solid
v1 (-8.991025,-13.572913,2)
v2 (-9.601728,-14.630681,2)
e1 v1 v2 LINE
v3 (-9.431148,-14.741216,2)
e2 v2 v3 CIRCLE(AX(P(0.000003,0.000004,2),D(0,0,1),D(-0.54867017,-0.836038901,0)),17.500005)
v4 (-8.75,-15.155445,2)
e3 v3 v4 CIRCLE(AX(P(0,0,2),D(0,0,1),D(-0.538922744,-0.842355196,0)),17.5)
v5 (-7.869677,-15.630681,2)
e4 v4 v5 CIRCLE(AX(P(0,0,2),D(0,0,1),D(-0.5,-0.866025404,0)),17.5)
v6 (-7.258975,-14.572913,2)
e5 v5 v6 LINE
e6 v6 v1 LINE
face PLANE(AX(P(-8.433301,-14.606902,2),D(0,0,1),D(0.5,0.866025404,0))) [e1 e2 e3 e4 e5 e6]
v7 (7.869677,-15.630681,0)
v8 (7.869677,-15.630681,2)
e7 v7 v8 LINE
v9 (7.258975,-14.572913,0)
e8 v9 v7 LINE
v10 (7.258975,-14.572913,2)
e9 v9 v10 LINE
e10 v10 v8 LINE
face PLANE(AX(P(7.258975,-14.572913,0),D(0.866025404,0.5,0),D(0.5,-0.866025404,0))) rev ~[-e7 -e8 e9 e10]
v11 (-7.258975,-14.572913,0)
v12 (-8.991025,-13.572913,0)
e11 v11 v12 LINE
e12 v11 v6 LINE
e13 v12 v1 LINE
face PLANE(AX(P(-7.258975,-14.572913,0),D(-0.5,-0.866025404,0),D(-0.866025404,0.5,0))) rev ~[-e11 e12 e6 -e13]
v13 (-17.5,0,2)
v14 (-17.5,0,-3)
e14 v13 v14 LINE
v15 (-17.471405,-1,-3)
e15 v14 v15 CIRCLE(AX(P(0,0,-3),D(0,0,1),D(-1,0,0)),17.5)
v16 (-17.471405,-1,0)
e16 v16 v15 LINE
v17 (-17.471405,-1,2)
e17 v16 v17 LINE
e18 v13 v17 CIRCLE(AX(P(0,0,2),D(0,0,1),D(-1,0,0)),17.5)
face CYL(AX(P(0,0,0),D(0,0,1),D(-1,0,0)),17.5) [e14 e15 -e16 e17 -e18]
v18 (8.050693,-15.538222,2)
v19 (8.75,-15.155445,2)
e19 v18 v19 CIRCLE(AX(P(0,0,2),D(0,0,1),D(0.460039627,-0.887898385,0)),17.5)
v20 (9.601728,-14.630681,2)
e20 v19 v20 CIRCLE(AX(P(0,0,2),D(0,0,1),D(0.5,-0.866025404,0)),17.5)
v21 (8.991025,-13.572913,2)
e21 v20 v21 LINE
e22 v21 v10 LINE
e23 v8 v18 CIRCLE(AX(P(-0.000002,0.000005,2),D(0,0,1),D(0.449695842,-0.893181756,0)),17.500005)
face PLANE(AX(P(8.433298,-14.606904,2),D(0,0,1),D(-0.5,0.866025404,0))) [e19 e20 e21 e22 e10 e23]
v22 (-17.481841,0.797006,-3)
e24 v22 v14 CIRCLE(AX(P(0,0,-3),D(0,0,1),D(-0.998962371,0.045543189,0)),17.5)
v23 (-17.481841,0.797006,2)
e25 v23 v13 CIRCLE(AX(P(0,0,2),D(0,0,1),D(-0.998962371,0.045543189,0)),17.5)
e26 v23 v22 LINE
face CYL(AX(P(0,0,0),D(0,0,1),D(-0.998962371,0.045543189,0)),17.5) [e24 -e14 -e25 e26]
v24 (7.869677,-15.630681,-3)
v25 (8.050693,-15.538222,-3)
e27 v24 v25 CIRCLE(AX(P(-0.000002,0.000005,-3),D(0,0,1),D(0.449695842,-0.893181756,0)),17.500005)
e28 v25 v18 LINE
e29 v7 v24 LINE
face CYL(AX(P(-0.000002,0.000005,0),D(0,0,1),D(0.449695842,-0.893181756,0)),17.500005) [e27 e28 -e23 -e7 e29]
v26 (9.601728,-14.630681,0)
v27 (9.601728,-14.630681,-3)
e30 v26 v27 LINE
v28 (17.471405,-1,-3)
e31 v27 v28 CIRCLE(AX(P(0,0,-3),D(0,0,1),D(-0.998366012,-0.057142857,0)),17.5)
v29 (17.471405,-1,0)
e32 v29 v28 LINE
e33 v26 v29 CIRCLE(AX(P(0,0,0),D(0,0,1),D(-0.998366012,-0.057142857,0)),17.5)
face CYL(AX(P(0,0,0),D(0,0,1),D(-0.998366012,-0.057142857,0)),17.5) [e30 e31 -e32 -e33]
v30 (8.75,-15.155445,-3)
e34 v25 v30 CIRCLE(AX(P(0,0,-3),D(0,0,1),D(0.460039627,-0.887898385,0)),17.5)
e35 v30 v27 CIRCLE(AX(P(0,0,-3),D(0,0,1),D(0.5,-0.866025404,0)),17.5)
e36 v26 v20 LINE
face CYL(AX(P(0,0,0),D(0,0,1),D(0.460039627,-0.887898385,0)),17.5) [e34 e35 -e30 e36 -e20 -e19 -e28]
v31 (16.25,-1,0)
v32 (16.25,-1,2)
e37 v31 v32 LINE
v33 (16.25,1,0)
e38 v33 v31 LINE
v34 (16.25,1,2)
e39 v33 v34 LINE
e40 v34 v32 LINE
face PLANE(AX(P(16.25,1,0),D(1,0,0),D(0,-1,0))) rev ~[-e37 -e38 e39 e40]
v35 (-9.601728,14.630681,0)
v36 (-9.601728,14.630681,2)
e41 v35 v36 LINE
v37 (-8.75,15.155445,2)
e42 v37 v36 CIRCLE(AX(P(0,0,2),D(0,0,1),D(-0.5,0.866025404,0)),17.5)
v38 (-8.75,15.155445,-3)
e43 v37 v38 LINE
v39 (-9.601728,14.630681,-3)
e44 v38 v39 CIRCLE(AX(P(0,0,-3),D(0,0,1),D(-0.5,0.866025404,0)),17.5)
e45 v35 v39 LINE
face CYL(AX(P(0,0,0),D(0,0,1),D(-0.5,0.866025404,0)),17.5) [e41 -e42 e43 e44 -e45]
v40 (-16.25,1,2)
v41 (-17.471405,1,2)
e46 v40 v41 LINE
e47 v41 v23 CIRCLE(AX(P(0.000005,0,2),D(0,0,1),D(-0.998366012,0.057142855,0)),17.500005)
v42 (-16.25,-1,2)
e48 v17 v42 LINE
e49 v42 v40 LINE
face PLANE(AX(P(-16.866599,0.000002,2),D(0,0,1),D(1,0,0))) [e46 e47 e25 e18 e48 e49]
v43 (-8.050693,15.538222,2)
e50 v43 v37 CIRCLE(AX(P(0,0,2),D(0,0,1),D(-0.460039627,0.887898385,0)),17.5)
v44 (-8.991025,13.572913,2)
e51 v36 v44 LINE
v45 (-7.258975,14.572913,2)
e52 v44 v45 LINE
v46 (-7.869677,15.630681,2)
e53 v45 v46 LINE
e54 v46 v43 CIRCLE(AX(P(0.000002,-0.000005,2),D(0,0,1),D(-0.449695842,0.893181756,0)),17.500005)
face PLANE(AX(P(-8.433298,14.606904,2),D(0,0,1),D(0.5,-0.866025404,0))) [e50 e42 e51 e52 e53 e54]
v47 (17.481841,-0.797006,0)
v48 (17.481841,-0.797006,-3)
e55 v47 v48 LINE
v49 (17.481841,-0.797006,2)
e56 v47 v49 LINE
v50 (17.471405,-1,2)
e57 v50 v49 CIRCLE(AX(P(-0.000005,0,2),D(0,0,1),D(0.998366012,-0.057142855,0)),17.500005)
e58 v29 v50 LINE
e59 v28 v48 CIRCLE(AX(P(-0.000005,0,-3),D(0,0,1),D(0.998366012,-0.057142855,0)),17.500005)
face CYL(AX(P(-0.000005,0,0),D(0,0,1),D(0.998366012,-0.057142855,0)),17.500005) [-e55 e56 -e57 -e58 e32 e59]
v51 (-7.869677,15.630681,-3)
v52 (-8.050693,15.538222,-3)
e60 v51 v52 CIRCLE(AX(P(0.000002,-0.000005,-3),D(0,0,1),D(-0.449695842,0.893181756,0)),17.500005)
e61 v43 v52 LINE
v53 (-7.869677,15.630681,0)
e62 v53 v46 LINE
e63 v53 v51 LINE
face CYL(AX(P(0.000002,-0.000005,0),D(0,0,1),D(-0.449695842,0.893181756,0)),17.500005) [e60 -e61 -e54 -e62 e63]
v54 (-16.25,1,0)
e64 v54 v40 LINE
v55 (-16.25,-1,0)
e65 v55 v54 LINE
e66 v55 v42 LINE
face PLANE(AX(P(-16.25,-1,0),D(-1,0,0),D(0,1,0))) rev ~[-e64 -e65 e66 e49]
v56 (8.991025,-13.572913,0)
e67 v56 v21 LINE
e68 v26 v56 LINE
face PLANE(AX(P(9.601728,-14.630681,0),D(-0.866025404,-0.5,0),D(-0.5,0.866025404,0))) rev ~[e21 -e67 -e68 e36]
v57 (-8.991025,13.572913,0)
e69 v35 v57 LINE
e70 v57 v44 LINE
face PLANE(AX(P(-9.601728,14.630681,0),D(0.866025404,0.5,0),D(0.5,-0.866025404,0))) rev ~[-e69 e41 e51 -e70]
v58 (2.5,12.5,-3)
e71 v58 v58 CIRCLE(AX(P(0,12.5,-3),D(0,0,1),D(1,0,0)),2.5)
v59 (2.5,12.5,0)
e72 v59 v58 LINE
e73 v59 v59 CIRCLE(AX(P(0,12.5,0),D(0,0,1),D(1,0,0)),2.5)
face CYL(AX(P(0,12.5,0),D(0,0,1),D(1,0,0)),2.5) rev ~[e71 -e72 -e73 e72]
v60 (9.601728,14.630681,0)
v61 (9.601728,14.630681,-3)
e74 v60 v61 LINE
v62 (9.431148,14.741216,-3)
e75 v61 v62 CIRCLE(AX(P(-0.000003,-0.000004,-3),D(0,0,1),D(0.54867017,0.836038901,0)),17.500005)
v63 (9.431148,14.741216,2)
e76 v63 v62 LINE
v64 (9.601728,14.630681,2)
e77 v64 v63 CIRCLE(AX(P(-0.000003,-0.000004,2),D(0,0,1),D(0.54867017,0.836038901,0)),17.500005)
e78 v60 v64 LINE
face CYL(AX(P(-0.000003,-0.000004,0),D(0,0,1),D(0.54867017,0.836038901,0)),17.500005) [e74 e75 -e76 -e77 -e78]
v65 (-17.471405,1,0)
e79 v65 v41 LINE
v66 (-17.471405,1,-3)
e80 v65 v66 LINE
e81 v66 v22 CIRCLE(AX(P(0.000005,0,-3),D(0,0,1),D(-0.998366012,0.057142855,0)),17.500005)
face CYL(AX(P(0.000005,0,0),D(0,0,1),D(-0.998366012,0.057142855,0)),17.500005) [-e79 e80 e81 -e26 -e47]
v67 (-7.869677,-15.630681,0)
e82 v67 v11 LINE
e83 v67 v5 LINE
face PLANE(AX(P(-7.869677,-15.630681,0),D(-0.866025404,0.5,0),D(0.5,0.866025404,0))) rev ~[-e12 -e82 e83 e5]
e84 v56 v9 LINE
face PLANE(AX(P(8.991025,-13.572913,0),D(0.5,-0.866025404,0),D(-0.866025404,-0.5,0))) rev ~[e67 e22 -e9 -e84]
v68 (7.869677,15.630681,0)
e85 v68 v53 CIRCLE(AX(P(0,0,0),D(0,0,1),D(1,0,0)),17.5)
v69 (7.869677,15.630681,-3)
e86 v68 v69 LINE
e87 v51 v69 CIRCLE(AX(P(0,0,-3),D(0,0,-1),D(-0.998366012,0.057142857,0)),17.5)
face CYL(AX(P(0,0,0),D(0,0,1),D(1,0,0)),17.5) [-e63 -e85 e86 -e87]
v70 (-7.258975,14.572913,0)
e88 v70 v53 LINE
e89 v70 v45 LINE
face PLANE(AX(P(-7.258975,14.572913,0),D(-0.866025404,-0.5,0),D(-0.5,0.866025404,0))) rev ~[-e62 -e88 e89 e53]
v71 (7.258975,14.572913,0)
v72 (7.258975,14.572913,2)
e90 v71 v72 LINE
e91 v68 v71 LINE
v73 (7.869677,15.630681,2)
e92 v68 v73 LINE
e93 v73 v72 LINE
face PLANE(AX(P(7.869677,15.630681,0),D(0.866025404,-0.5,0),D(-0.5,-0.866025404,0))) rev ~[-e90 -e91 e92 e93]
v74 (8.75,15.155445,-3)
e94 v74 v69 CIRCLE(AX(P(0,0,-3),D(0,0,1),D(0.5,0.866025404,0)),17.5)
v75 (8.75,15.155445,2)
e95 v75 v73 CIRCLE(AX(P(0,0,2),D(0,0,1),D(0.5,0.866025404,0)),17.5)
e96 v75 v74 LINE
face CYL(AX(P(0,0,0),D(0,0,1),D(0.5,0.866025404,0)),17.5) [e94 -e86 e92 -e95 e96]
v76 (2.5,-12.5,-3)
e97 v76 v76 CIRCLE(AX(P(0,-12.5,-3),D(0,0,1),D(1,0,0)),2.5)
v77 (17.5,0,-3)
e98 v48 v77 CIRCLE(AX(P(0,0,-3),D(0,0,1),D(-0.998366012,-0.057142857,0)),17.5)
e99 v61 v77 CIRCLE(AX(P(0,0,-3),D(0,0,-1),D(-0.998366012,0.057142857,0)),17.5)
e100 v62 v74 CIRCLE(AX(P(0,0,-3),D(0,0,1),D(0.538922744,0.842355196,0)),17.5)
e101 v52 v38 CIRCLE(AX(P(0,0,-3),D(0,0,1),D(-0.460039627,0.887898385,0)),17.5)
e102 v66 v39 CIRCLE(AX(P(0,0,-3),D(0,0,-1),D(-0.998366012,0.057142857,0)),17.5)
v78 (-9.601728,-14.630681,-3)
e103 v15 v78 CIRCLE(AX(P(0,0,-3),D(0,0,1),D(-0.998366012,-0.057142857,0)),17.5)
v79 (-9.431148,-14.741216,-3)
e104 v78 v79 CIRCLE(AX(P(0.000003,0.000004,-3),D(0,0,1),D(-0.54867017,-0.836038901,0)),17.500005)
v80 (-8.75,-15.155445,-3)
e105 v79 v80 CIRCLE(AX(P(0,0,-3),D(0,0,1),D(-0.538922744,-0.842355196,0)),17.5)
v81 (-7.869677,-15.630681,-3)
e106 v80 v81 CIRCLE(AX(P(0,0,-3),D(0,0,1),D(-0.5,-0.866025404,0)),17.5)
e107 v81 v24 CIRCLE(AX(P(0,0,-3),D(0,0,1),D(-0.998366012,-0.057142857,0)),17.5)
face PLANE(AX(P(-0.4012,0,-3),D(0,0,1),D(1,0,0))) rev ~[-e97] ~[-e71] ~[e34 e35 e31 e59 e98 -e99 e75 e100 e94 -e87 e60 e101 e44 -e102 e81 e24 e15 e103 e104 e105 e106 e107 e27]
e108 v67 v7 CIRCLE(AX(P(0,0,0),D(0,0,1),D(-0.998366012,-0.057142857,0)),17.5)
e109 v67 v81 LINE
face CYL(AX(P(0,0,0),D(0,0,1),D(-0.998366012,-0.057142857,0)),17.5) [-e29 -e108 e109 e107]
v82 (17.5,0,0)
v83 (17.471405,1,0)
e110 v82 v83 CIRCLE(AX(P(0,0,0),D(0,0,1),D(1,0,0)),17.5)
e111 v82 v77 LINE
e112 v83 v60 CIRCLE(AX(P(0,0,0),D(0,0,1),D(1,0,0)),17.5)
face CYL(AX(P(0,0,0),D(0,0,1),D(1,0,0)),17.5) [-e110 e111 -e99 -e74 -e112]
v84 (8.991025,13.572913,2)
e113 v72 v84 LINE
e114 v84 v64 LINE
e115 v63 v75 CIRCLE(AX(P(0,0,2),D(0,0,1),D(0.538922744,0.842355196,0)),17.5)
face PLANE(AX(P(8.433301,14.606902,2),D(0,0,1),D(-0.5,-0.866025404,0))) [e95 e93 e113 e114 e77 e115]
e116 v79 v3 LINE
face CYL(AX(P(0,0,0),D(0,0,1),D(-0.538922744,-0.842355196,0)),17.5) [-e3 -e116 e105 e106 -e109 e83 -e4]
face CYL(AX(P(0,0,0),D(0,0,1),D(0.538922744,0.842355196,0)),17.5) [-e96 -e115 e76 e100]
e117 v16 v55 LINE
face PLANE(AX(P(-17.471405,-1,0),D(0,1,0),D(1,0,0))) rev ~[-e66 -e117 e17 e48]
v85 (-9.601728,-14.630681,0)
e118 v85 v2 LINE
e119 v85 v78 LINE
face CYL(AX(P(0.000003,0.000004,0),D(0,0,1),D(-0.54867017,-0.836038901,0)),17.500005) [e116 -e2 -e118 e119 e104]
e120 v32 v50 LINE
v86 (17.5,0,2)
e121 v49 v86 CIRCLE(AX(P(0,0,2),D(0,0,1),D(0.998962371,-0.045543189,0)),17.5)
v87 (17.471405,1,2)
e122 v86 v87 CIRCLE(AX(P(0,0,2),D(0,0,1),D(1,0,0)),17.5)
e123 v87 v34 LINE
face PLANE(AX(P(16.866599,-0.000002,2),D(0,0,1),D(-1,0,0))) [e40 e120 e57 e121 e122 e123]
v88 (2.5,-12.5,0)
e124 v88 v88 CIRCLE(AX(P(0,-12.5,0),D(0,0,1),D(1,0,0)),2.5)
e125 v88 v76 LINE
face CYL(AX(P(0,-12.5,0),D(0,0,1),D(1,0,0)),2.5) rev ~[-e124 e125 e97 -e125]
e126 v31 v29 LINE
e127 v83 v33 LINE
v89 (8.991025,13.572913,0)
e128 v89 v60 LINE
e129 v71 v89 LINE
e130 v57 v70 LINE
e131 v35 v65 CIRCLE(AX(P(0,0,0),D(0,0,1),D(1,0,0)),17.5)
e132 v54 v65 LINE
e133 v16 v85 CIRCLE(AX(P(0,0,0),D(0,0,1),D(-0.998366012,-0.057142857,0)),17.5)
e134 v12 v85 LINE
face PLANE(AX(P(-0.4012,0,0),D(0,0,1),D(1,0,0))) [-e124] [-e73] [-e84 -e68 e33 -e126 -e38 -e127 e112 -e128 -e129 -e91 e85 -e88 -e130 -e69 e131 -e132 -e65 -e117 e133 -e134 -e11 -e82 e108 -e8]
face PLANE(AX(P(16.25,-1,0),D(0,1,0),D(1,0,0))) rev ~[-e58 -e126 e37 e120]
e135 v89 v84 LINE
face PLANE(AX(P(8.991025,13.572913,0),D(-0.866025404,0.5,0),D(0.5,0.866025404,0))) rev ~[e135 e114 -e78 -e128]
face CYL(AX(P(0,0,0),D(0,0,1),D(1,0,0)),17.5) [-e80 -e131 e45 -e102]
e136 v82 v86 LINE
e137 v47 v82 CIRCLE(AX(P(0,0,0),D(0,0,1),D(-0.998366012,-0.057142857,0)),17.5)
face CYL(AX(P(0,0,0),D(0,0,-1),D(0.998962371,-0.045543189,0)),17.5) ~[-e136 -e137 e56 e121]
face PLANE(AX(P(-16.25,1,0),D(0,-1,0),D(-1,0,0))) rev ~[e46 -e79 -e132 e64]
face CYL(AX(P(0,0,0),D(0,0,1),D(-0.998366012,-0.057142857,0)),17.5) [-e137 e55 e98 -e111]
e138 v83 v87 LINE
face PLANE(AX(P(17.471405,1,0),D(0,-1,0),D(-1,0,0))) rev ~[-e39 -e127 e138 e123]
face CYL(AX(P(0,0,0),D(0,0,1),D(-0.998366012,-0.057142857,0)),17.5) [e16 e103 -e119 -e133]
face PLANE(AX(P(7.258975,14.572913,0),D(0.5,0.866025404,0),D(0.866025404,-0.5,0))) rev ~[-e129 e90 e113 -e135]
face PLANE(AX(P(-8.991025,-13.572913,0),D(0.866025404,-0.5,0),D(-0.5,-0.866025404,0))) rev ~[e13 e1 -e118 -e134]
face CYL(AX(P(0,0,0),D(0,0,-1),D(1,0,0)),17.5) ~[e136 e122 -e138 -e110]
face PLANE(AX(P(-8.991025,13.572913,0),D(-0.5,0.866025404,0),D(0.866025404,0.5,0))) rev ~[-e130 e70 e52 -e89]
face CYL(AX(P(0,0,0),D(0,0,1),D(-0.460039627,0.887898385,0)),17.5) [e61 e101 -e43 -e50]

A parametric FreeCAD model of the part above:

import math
import FreeCAD as App
import Part
import Sketcher

V = App.Vector

doc = App.newDocument("Part")
params = doc.addObject("Spreadsheet::Sheet", "Params")
for row, (alias, value) in enumerate([
    ("sketch1_radius", "17.5 mm"),
    ("sketch1_height", "2 mm"),
    ("pad1_length", "2 mm"),
    ("sketch2_diameter", "5 mm"),
    ("sketch2_radius", "17.5 mm"),
    ("pad2_length", "3 mm"),
    ("sketch3_diameter", "5 mm"),
], start=1):
    params.set(f"A{row}", alias)
    params.set(f"B{row}", "=" + value)
    params.setAlias(f"B{row}", alias)

body = doc.addObject("PartDesign::Body", "Body")

# Sketch on XY plane
sketch1 = body.newObject("Sketcher::SketchObject", "Sketch")
sketch1.AttachmentSupport = (doc.getObject("XY_Plane"), [""])
sketch1.MapMode = "FlatFace"
sketch1.addGeometry([
    Part.LineSegment(V(-16.25, 1, 0), V(-17.47, 1, 0)),  # 0
    Part.ArcOfCircle(Part.Circle(V(0, 0, 0), V(0, 0, 1), 17.5), math.radians(176.72), math.radians(177.39)),  # 1
    Part.ArcOfCircle(Part.Circle(V(0, 0, 0), V(0, 0, 1), 17.5), math.radians(177.39), math.radians(180)),  # 2
    Part.ArcOfCircle(Part.Circle(V(0, 0, 0), V(0, 0, 1), 17.5), math.radians(-180), math.radians(-176.72)),  # 3
    Part.LineSegment(V(-17.47, -1, 0), V(-16.25, -1, 0)),  # 4
    Part.LineSegment(V(-16.25, -1, 0), V(-16.25, 1, 0)),  # 5
], False)
sketch1.addConstraint([
    Sketcher.Constraint("Coincident", 0, 2, 1, 1),
    Sketcher.Constraint("Tangent", 1, 2, 2, 1),
    Sketcher.Constraint("Tangent", 2, 2, 3, 1),
    Sketcher.Constraint("Coincident", 3, 2, 4, 1),
    Sketcher.Constraint("Coincident", 4, 2, 5, 1),
    Sketcher.Constraint("Coincident", 5, 2, 0, 1),
    Sketcher.Constraint("Horizontal", 0),
    Sketcher.Constraint("Horizontal", 4),
    Sketcher.Constraint("Vertical", 5),
    Sketcher.Constraint("Coincident", 1, 3, -1, 1),
    Sketcher.Constraint("Coincident", 3, 3, -1, 1),
    Sketcher.Constraint("PointOnObject", 2, 2, -1),
    Sketcher.Constraint("Vertical", 0, 2, 3, 2),
    Sketcher.Constraint("Radius", 2, 17.5),
    Sketcher.Constraint("DistanceY", 5, 1, 5, 2, 2.0),
    Sketcher.Constraint("DistanceX", 4, 2, -1, 1, 16.25),
    Sketcher.Constraint("DistanceX", 1, 2, -1, 1, 17.481841),
])
sketch1.setExpression("Constraints[13]", "Params.sketch1_radius")
sketch1.setExpression("Constraints[14]", "Params.sketch1_height")
pad1 = body.newObject("PartDesign::Pad", "Pad")
pad1.Profile = sketch1
pad1.setExpression("Length", "Params.pad1_length")

# Sketch on XY plane
sketch2 = body.newObject("Sketcher::SketchObject", "Sketch001")
sketch2.AttachmentSupport = (doc.getObject("XY_Plane"), [""])
sketch2.MapMode = "FlatFace"
sketch2.addGeometry([
    Part.ArcOfCircle(Part.Circle(V(0, 0, 0), V(0, 0, 1), 17.5), math.radians(-177), math.radians(0)),  # 0
    Part.ArcOfCircle(Part.Circle(V(0, 0, 0), V(0, 0, 1), 17.5), math.radians(0), math.radians(177)),  # 1
    Part.ArcOfCircle(Part.Circle(V(0, 0, 0), V(0, 0, 1), 17.5), math.radians(176.72), math.radians(177.39)),  # 2
    Part.ArcOfCircle(Part.Circle(V(0, 0, 0), V(0, 0, 1), 17.5), math.radians(177.39), math.radians(180)),  # 3
    Part.ArcOfCircle(Part.Circle(V(0, 0, 0), V(0, 0, 1), 17.5), math.radians(-180), math.radians(-176.72)),  # 4
    Part.Circle(V(0, -12.5, 0), V(0, 0, 1), 2.5),  # 5
    Part.Circle(V(0, 12.5, 0), V(0, 0, 1), 2.5),  # 6
], False)
sketch2.addConstraint([
    Sketcher.Constraint("Tangent", 0, 2, 1, 1),
    Sketcher.Constraint("Tangent", 1, 2, 2, 1),
    Sketcher.Constraint("Tangent", 2, 2, 3, 1),
    Sketcher.Constraint("Tangent", 3, 2, 4, 1),
    Sketcher.Constraint("Tangent", 4, 2, 0, 1),
    Sketcher.Constraint("Coincident", 0, 3, -1, 1),
    Sketcher.Constraint("Coincident", 3, 3, -1, 1),
    Sketcher.Constraint("Equal", 5, 6),
    Sketcher.Constraint("Symmetric", 5, 3, 6, 3, -1, 1),
    Sketcher.Constraint("PointOnObject", 5, 3, -2),
    Sketcher.Constraint("PointOnObject", 0, 2, -1),
    Sketcher.Constraint("PointOnObject", 3, 2, -1),
    Sketcher.Constraint("Vertical", 1, 2, 4, 2),
    Sketcher.Constraint("Diameter", 5, 5.0),
    Sketcher.Constraint("Radius", 0, 17.5),
    Sketcher.Constraint("DistanceY", -1, 1, 1, 2, 1.0),
    Sketcher.Constraint("DistanceY", 5, 3, -1, 1, 12.5),
    Sketcher.Constraint("DistanceX", 2, 2, -1, 1, 17.481841),
])
sketch2.setExpression("Constraints[13]", "Params.sketch2_diameter")
sketch2.setExpression("Constraints[14]", "Params.sketch2_radius")
pad2 = body.newObject("PartDesign::Pad", "Pad001")
pad2.Profile = sketch2
pad2.setExpression("Length", "Params.pad2_length")
pad2.Reversed = True
body2 = doc.addObject("PartDesign::Body", "Body001")
doc.recompute()

body2.BaseFeature = body
doc.recompute()

body3 = doc.addObject("PartDesign::Body", "Body002")
body3.BaseFeature = body
body3.Placement = App.Placement(V(0, 0, 0), App.Rotation(V(0, 0, 1), 60))
boolean = body2.newObject("PartDesign::Boolean", "Boolean")
boolean.Type = "Fuse"
boolean.addObjects([body3])
doc.recompute()

body4 = doc.addObject("PartDesign::Body", "Body003")
body4.BaseFeature = body
body4.Placement = App.Placement(V(0, 0, 0), App.Rotation(V(0, 0, 1), 120))
boolean2 = body2.newObject("PartDesign::Boolean", "Boolean001")
boolean2.Type = "Fuse"
boolean2.addObjects([body4])
doc.recompute()

body5 = doc.addObject("PartDesign::Body", "Body004")
body5.BaseFeature = body
body5.Placement = App.Placement(V(0, 0, 0), App.Rotation(V(0, 0, 1), 180))
boolean3 = body2.newObject("PartDesign::Boolean", "Boolean002")
boolean3.Type = "Fuse"
boolean3.addObjects([body5])
doc.recompute()

body6 = doc.addObject("PartDesign::Body", "Body005")
body6.BaseFeature = body
body6.Placement = App.Placement(V(0, 0, 0), App.Rotation(V(0, 0, 1), 240))
boolean4 = body2.newObject("PartDesign::Boolean", "Boolean003")
boolean4.Type = "Fuse"
boolean4.addObjects([body6])
doc.recompute()

body.Placement = App.Placement(V(0, 0, 0), App.Rotation(V(0, 0, 1), 300))
boolean5 = body2.newObject("PartDesign::Boolean", "Boolean004")
boolean5.Type = "Fuse"
boolean5.addObjects([body])

# Sketch on XY plane
sketch3 = body2.newObject("Sketcher::SketchObject", "Sketch002")
sketch3.AttachmentSupport = (doc.getObject("XY_Plane001"), [""])
sketch3.MapMode = "FlatFace"
sketch3.addGeometry([
    Part.Circle(V(0, -12.5, 0), V(0, 0, 1), 2.5),
    Part.Circle(V(0, 12.5, 0), V(0, 0, 1), 2.5),
], False)
sketch3.addConstraint([
    Sketcher.Constraint("Equal", 0, 1),
    Sketcher.Constraint("Symmetric", 0, 3, 1, 3, -1, 1),
    Sketcher.Constraint("PointOnObject", 0, 3, -2),
    Sketcher.Constraint("Diameter", 0, 5.0),
    Sketcher.Constraint("DistanceY", 0, 3, 1, 3, 25.0),
])
sketch3.setExpression("Constraints[3]", "Params.sketch3_diameter")
pocket1 = body2.newObject("PartDesign::Pocket", "Pocket")
pocket1.Profile = sketch3
pocket1.Type = "ThroughAll"

doc.recompute()
